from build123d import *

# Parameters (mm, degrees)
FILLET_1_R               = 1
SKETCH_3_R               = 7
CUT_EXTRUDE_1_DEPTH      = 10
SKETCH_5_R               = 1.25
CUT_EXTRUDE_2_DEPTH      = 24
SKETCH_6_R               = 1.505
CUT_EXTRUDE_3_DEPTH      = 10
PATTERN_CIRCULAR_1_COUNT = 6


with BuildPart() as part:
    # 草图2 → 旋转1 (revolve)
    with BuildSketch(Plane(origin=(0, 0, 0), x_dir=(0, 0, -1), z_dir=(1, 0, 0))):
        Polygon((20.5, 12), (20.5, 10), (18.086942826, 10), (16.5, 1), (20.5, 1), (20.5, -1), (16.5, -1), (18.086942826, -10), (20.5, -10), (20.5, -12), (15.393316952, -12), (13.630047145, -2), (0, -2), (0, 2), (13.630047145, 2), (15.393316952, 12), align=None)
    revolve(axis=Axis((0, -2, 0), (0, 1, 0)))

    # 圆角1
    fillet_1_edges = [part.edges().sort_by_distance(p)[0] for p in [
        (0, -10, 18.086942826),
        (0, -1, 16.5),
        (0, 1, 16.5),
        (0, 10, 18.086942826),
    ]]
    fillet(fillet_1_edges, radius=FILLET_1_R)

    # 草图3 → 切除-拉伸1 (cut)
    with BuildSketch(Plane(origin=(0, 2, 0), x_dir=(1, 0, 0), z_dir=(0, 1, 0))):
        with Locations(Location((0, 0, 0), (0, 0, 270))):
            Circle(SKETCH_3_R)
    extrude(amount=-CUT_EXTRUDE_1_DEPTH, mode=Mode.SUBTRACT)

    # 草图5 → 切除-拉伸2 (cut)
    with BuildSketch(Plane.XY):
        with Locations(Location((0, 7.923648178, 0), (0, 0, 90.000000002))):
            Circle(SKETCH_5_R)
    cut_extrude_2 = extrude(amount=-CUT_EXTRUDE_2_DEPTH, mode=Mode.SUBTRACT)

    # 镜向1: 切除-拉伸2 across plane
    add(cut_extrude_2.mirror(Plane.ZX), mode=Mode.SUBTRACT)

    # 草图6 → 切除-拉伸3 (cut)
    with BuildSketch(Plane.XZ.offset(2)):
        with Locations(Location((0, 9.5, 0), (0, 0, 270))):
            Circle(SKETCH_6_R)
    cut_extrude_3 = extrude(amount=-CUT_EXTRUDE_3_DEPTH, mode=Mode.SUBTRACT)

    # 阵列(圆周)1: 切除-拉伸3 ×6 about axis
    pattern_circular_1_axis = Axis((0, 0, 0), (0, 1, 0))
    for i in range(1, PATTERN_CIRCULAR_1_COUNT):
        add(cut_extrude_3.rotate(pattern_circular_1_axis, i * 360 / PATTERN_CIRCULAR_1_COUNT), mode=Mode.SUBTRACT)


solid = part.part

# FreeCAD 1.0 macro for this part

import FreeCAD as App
import Part
import Sketcher
Q = App.Units.Quantity


def edges_at(feature, points):
    """Names of the edges that pass closest to the given points."""
    edges = feature.Shape.Edges
    near = lambda p: min(range(len(edges)), key=lambda i: edges[i].distToShape(Part.Vertex(*p))[0])
    return sorted({f"Edge{near(p) + 1}" for p in points})


def add_polygon(sketch, points):
    """Adds a closed chain of lines whose ends are joined by coincident constraints."""
    first, n = sketch.GeometryCount, len(points)
    for a, b in zip(points, points[1:] + points[:1]):
        sketch.addGeometry(Part.LineSegment(App.Vector(*a, 0), App.Vector(*b, 0)), False)
    for i in range(n):
        sketch.addConstraint(Sketcher.Constraint("Coincident", first + i, 2, first + (i + 1) % n, 1))

doc = App.newDocument("Part")
body = doc.addObject("PartDesign::Body", "Body")

# Sketch on YZ plane
sketch1 = body.newObject("Sketcher::SketchObject", "Sketch")
sketch1.AttachmentSupport = (doc.getObject("YZ_Plane"), [""])
sketch1.MapMode = "FlatFace"
add_polygon(sketch1, [(10, -20.5), (12, -20.5), (12, -15.4), (2, -13.6), (2, 0), (-2, 0), (-2, -13.6), (-12, -15.4), (-12, -20.5), (-10, -20.5), (-10, -18.1), (-1, -16.5), (-1, -20.5), (1, -20.5), (1, -16.5), (10, -18.1)])  # lines 0-15
sketch1.addConstraint([
    Sketcher.Constraint("Horizontal", 0),
    Sketcher.Constraint("Vertical", 1),
    Sketcher.Constraint("Vertical", 3),
    Sketcher.Constraint("Horizontal", 4),
    Sketcher.Constraint("Vertical", 5),
    Sketcher.Constraint("Vertical", 7),
    Sketcher.Constraint("Horizontal", 8),
    Sketcher.Constraint("Vertical", 9),
    Sketcher.Constraint("Vertical", 11),
    Sketcher.Constraint("Horizontal", 12),
    Sketcher.Constraint("Vertical", 13),
    Sketcher.Constraint("Vertical", 15),
    Sketcher.Constraint("Symmetric", 3, 2, 4, 2, -1, 1),
    Sketcher.Constraint("Symmetric", 1, 2, 6, 2, -2),
    Sketcher.Constraint("Symmetric", 10, 2, 13, 2, -2),
    Sketcher.Constraint("Symmetric", 9, 2, 14, 2, -2),
    Sketcher.Constraint("Parallel", 6, 10),
    Sketcher.Constraint("Parallel", 2, 14),
    Sketcher.Constraint("Horizontal", 0, 2, 7, 2),
    Sketcher.Constraint("Horizontal", 8, 2, 11, 2),
    Sketcher.Constraint("Equal", 8, 12),
    Sketcher.Constraint("Equal", 4, 11),
    Sketcher.Constraint("DistanceX", 0, 1, 0, 2, 2.0),
    Sketcher.Constraint("DistanceX", 4, 2, 4, 1, 4.0),
    Sketcher.Constraint("Angle", 2, Q("170 deg")),
    Sketcher.Constraint("DistanceX", -1, 1, 0, 2, 12.0),
    Sketcher.Constraint("DistanceY", 0, 2, -1, 1, 20.5),
    Sketcher.Constraint("DistanceY", 1, 1, 1, 2, 5.106683),
])
revolution = body.newObject("PartDesign::Revolution", "Revolution")
revolution.Profile = sketch1
revolution.ReferenceAxis = (sketch1, ["H_Axis"])
revolution.Angle = 360
doc.recompute()

fillet = body.newObject("PartDesign::Fillet", "Fillet")
fillet.Base = (revolution, edges_at(revolution, [
    (0, -10, 18.087),
    (0, -1, 16.5),
    (0, 1, 16.5),
    (0, 10, 18.087),
]))
fillet.Radius = 1

# Sketch on XZ plane
sketch2 = body.newObject("Sketcher::SketchObject", "Sketch001")
sketch2.AttachmentSupport = (doc.getObject("XZ_Plane"), [""])
sketch2.MapMode = "FlatFace"
sketch2.AttachmentOffset = App.Placement(App.Vector(0, 0, -2), App.Rotation())
sketch2.addGeometry(Part.Circle(App.Vector(0, 0, 0), App.Vector(0, 0, 1), 7), False)
sketch2.addConstraint([
    Sketcher.Constraint("Coincident", 0, 3, -1, 1),
    Sketcher.Constraint("Diameter", 0, 14.0),
])
pocket1 = body.newObject("PartDesign::Pocket", "Pocket")
pocket1.Profile = sketch2
pocket1.Length = 10
pocket1.Reversed = True

# Sketch on XY plane
sketch3 = body.newObject("Sketcher::SketchObject", "Sketch002")
sketch3.AttachmentSupport = (doc.getObject("XY_Plane"), [""])
sketch3.MapMode = "FlatFace"
sketch3.addGeometry(Part.Circle(App.Vector(0, 7.9, 0), App.Vector(0, 0, 1), 1.2), False)
sketch3.addConstraint([
    Sketcher.Constraint("PointOnObject", 0, 3, -2),
    Sketcher.Constraint("Diameter", 0, 2.5),
    Sketcher.Constraint("DistanceY", -1, 1, 0, 3, 7.923648),
])
pocket2 = body.newObject("PartDesign::Pocket", "Pocket001")
pocket2.Profile = sketch3
pocket2.Length = 24
doc.recompute()

mirrored = body.newObject("PartDesign::Mirrored", "Mirrored")
mirrored.Originals = [pocket2]
mirrored.MirrorPlane = (doc.getObject("XZ_Plane"), [""])
body.Tip = mirrored

# Sketch on XZ plane
sketch4 = body.newObject("Sketcher::SketchObject", "Sketch003")
sketch4.AttachmentSupport = (doc.getObject("XZ_Plane"), [""])
sketch4.MapMode = "FlatFace"
sketch4.AttachmentOffset = App.Placement(App.Vector(0, 0, 2), App.Rotation())
sketch4.addGeometry(Part.Circle(App.Vector(0, 9.5, 0), App.Vector(0, 0, 1), 1.5), False)
sketch4.addConstraint([
    Sketcher.Constraint("PointOnObject", 0, 3, -2),
    Sketcher.Constraint("Diameter", 0, 3.01),
    Sketcher.Constraint("DistanceY", -1, 1, 0, 3, 9.5),
])
pocket3 = body.newObject("PartDesign::Pocket", "Pocket002")
pocket3.Profile = sketch4
pocket3.Length = 10
doc.recompute()

polarpattern = body.newObject("PartDesign::PolarPattern", "PolarPattern")
polarpattern.Originals = [pocket3]
polarpattern.Axis = (doc.getObject("Y_Axis"), [""])
polarpattern.Angle = 360
polarpattern.Occurrences = 6
body.Tip = polarpattern

doc.recompute()
